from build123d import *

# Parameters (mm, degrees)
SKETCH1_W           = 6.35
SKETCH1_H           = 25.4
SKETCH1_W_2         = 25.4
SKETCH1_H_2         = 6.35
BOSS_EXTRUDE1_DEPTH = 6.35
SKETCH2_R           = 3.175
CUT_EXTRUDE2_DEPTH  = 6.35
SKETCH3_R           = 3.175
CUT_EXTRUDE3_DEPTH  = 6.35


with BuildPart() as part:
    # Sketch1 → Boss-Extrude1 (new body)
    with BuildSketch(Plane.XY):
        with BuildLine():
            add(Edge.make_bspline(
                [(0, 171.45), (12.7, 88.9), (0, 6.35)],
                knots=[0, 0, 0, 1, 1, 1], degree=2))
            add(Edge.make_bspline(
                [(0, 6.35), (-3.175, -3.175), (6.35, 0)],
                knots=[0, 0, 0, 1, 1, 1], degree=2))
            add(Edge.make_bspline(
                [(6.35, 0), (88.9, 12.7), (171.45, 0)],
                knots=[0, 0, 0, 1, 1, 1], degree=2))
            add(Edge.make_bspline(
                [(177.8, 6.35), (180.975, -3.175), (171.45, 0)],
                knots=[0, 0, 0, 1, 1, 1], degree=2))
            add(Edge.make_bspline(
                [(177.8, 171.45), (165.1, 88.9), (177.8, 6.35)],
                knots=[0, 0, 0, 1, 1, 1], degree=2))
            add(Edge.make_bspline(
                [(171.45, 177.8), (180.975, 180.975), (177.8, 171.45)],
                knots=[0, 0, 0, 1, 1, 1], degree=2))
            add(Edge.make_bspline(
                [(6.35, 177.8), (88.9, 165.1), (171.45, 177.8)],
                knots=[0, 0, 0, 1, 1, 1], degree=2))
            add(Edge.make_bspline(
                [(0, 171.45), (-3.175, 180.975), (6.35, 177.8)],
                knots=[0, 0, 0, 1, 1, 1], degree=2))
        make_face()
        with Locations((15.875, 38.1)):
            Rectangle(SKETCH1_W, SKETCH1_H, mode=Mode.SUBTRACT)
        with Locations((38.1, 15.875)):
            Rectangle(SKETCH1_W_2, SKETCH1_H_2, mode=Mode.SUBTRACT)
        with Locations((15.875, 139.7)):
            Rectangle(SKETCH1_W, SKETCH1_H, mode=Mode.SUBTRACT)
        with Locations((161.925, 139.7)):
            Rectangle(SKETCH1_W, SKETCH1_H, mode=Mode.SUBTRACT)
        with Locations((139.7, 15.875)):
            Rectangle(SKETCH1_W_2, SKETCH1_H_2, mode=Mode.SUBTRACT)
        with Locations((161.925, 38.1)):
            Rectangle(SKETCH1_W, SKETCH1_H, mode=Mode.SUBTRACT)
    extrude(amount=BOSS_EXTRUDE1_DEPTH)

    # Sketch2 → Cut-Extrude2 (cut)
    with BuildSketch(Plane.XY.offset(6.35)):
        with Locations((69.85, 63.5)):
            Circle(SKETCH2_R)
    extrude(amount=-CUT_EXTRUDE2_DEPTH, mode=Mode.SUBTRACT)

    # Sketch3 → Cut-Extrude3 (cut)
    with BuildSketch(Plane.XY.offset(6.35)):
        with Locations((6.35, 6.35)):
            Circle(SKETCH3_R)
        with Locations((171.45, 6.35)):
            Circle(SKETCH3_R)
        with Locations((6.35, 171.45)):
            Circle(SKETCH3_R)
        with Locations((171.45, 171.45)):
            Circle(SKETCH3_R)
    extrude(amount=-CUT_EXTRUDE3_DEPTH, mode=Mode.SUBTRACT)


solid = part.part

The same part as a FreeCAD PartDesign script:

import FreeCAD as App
import Part
import Sketcher
from FreeCAD import Vector
Q = App.Units.Quantity


def add_polygon(sketch, points):
    """Adds a closed chain of lines whose ends are joined by coincident constraints."""
    first, n = sketch.GeometryCount, len(points)
    for a, b in zip(points, points[1:] + points[:1]):
        sketch.addGeometry(Part.LineSegment(App.Vector(*a, 0), App.Vector(*b, 0)), False)
    for i in range(n):
        sketch.addConstraint(Sketcher.Constraint("Coincident", first + i, 2, first + (i + 1) % n, 1))

doc = App.newDocument("Part")
params = doc.addObject("Spreadsheet::Sheet", "Params")
for row, (alias, value) in enumerate([
    ("sketch1_width", "1 in"),
    ("sketch1_width2", "0.25 in"),
    ("pad1_length", "0.25 in"),
    ("sketch2_diameter", "0.25 in"),
    ("pocket1_length", "0.25 in"),
    ("sketch3_diameter", "0.25 in"),
    ("pocket2_length", "0.25 in"),
], start=1):
    params.set(f"A{row}", alias)
    params.set(f"B{row}", "=" + value)
    params.setAlias(f"B{row}", alias)

body = doc.addObject("PartDesign::Body", "Body")

sketch1 = body.newObject("Sketcher::SketchObject", "Sketch")
sketch1.AttachmentSupport = (doc.getObject("XY_Plane"), [""])
sketch1.MapMode = "FlatFace"
sketch1.addGeometry(Part.BSplineCurve([Vector(0, 171.45, 0), Vector(12.7, 88.9, 0), Vector(0, 6.35, 0)], [3, 3], [0, 1], False, 2, [1, 1, 1], False), False)
sketch1.addGeometry(Part.BSplineCurve([Vector(0, 6.35, 0), Vector(-3.175, -3.175, 0), Vector(6.35, 0, 0)], [3, 3], [0, 1], False, 2, [1, 1, 1], False), False)
sketch1.addGeometry(Part.BSplineCurve([Vector(6.35, 0, 0), Vector(88.9, 12.7, 0), Vector(171.45, 0, 0)], [3, 3], [0, 1], False, 2, [1, 1, 1], False), False)
sketch1.addGeometry(Part.BSplineCurve([Vector(177.8, 6.35, 0), Vector(180.975, -3.175, 0), Vector(171.45, 0, 0)], [3, 3], [0, 1], False, 2, [1, 1, 1], False), False)
sketch1.addGeometry(Part.BSplineCurve([Vector(177.8, 171.45, 0), Vector(165.1, 88.9, 0), Vector(177.8, 6.35, 0)], [3, 3], [0, 1], False, 2, [1, 1, 1], False), False)
sketch1.addGeometry(Part.BSplineCurve([Vector(171.45, 177.8, 0), Vector(180.975, 180.975, 0), Vector(177.8, 171.45, 0)], [3, 3], [0, 1], False, 2, [1, 1, 1], False), False)
sketch1.addGeometry(Part.BSplineCurve([Vector(6.35, 177.8, 0), Vector(88.9, 165.1, 0), Vector(171.45, 177.8, 0)], [3, 3], [0, 1], False, 2, [1, 1, 1], False), False)
sketch1.addGeometry(Part.BSplineCurve([Vector(0, 171.45, 0), Vector(-3.175, 180.975, 0), Vector(6.35, 177.8, 0)], [3, 3], [0, 1], False, 2, [1, 1, 1], False), False)
add_polygon(sketch1, [(50.8, 12.7), (25.4, 12.7), (25.4, 19.05), (50.8, 19.05)])
add_polygon(sketch1, [(19.05, 25.4), (12.7, 25.4), (12.7, 50.8), (19.05, 50.8)])
add_polygon(sketch1, [(152.4, 12.7), (127, 12.7), (127, 19.05), (152.4, 19.05)])
add_polygon(sketch1, [(165.1, 25.4), (158.75, 25.4), (158.75, 50.8), (165.1, 50.8)])
add_polygon(sketch1, [(19.05, 127), (12.7, 127), (12.7, 152.4), (19.05, 152.4)])
add_polygon(sketch1, [(165.1, 127), (158.75, 127), (158.75, 152.4), (165.1, 152.4)])
sketch1.addConstraint([
    Sketcher.Constraint("Block", 0),
    Sketcher.Constraint("Block", 1),
    Sketcher.Constraint("Block", 2),
    Sketcher.Constraint("Block", 3),
    Sketcher.Constraint("Block", 4),
    Sketcher.Constraint("Block", 5),
    Sketcher.Constraint("Block", 6),
    Sketcher.Constraint("Block", 7),
    Sketcher.Constraint("Horizontal", 8),
    Sketcher.Constraint("Vertical", 9),
    Sketcher.Constraint("Horizontal", 10),
    Sketcher.Constraint("Vertical", 11),
    Sketcher.Constraint("Horizontal", 12),
    Sketcher.Constraint("Vertical", 13),
    Sketcher.Constraint("Horizontal", 14),
    Sketcher.Constraint("Vertical", 15),
    Sketcher.Constraint("Horizontal", 16),
    Sketcher.Constraint("Vertical", 17),
    Sketcher.Constraint("Horizontal", 18),
    Sketcher.Constraint("Vertical", 19),
    Sketcher.Constraint("Horizontal", 20),
    Sketcher.Constraint("Vertical", 21),
    Sketcher.Constraint("Horizontal", 22),
    Sketcher.Constraint("Vertical", 23),
    Sketcher.Constraint("Horizontal", 24),
    Sketcher.Constraint("Vertical", 25),
    Sketcher.Constraint("Horizontal", 26),
    Sketcher.Constraint("Vertical", 27),
    Sketcher.Constraint("Horizontal", 28),
    Sketcher.Constraint("Vertical", 29),
    Sketcher.Constraint("Horizontal", 30),
    Sketcher.Constraint("Vertical", 31),
    Sketcher.Constraint("Horizontal", 11, 2, 16, 2),
    Sketcher.Constraint("Horizontal", 10, 2, 17, 2),
    Sketcher.Constraint("Horizontal", 15, 2, 20, 2),
    Sketcher.Constraint("Horizontal", 14, 2, 21, 2),
    Sketcher.Constraint("Horizontal", 27, 2, 28, 2),
    Sketcher.Constraint("Horizontal", 26, 2, 29, 2),
    Sketcher.Constraint("Vertical", 13, 2, 24, 2),
    Sketcher.Constraint("Vertical", 15, 2, 26, 2),
    Sketcher.Constraint("Vertical", 21, 2, 28, 2),
    Sketcher.Constraint("Vertical", 23, 2, 30, 2),
    Sketcher.Constraint("Equal", 10, 16),
    Sketcher.Constraint("Equal", 14, 20),
    Sketcher.Constraint("Equal", 30, 9),
    Sketcher.Constraint("Equal", 18, 13),
    Sketcher.Constraint("Equal", 23, 25),
    Sketcher.Constraint("DistanceX", 8, 2, 8, 1, Q("1 in")),
    Sketcher.Constraint("DistanceX", -1, 1, 8, 2, Q("1 in")),
    Sketcher.Constraint("DistanceY", -1, 1, 12, 2, Q("1 in")),
    Sketcher.Constraint("DistanceX", -1, 1, 16, 2, Q("5 in")),
    Sketcher.Constraint("DistanceY", -1, 1, 24, 2, Q("5 in")),
    Sketcher.Constraint("DistanceX", 12, 2, 12, 1, Q("0.25 in")),
    Sketcher.Constraint("DistanceY", -1, 1, 8, 2, Q("0.5 in")),
    Sketcher.Constraint("DistanceX", -1, 1, 12, 2, Q("0.5 in")),
    Sketcher.Constraint("DistanceX", -1, 1, 22, 2, Q("6.5 in")),
])
sketch1.setExpression("Constraints[71]", "Params.sketch1_width")
sketch1.setExpression("Constraints[76]", "Params.sketch1_width2")
pad1 = body.newObject("PartDesign::Pad", "Pad")
pad1.Profile = sketch1
pad1.setExpression("Length", "Params.pad1_length")

sketch2 = body.newObject("Sketcher::SketchObject", "Sketch001")
sketch2.AttachmentSupport = (doc.getObject("XY_Plane"), [""])
sketch2.MapMode = "FlatFace"
sketch2.AttachmentOffset = App.Placement(Vector(0, 0, 0.25 * 25.4), App.Rotation())
sketch2.addGeometry(Part.Circle(Vector(69.8, 63.5, 0), Vector(0, 0, 1), 3.2), False)
sketch2.addConstraint([
    Sketcher.Constraint("Diameter", 0, Q("0.25 in")),
    Sketcher.Constraint("DistanceY", -1, 1, 0, 3, Q("2.5 in")),
    Sketcher.Constraint("DistanceX", -1, 1, 0, 3, Q("2.75 in")),
])
sketch2.setExpression("Constraints[0]", "Params.sketch2_diameter")
pocket1 = body.newObject("PartDesign::Pocket", "Pocket")
pocket1.Profile = sketch2
pocket1.setExpression("Length", "Params.pocket1_length")

sketch3 = body.newObject("Sketcher::SketchObject", "Sketch002")
sketch3.AttachmentSupport = (doc.getObject("XY_Plane"), [""])
sketch3.MapMode = "FlatFace"
sketch3.AttachmentOffset = App.Placement(Vector(0, 0, 0.25 * 25.4), App.Rotation())
sketch3.addGeometry([
    Part.Circle(Vector(6.3, 6.3, 0), Vector(0, 0, 1), 3.2),
    Part.Circle(Vector(171.4, 6.3, 0), Vector(0, 0, 1), 3.2),
    Part.Circle(Vector(6.3, 171.4, 0), Vector(0, 0, 1), 3.2),
    Part.Circle(Vector(171.4, 171.4, 0), Vector(0, 0, 1), 3.2),
], False)
sketch3.addConstraint([
    Sketcher.Constraint("Equal", 0, 1),
    Sketcher.Constraint("Equal", 1, 2),
    Sketcher.Constraint("Equal", 2, 3),
    Sketcher.Constraint("Horizontal", 0, 3, 1, 3),
    Sketcher.Constraint("Horizontal", 2, 3, 3, 3),
    Sketcher.Constraint("Vertical", 0, 3, 2, 3),
    Sketcher.Constraint("Vertical", 1, 3, 3, 3),
    Sketcher.Constraint("Diameter", 0, Q("0.25 in")),
    Sketcher.Constraint("DistanceX", 0, 3, 1, 3, Q("6.5 in")),
    Sketcher.Constraint("DistanceY", 0, 3, 2, 3, Q("6.5 in")),
    Sketcher.Constraint("DistanceX", -1, 1, 0, 3, Q("0.25 in")),
    Sketcher.Constraint("DistanceY", -1, 1, 0, 3, Q("0.25 in")),
])
sketch3.setExpression("Constraints[7]", "Params.sketch3_diameter")
pocket2 = body.newObject("PartDesign::Pocket", "Pocket001")
pocket2.Profile = sketch3
pocket2.setExpression("Length", "Params.pocket2_length")

doc.recompute()
